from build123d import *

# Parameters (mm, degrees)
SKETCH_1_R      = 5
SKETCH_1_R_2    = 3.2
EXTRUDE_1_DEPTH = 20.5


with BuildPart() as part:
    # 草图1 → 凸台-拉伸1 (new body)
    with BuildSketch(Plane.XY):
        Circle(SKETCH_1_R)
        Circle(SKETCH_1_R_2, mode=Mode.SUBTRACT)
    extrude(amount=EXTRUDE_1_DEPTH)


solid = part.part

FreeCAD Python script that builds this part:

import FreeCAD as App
import Part
import Sketcher
Q = App.Units.Quantity

doc = App.newDocument("Part")
params = doc.addObject("Spreadsheet::Sheet", "Params")
for row, (alias, value) in enumerate([
    ("sketch1_diameter", "10 mm"),
    ("sketch1_diameter2", "6.4 mm"),
    ("pad1_length", "20.5 mm"),
], start=1):
    params.set(f"A{row}", alias)
    params.set(f"B{row}", "=" + value)
    params.setAlias(f"B{row}", alias)

body = doc.addObject("PartDesign::Body", "Body")

# Sketch on XY plane
sketch1 = doc.addObject("Sketcher::SketchObject", "Sketch")
body.addObject(sketch1)
sketch1.AttachmentSupport = (doc.XY_Plane, [""])
sketch1.MapMode = "FlatFace"
sketch1.addGeometry(Part.Circle(App.Vector(0, 0, 0), App.Vector(0, 0, 1), 5), False)
sketch1.addGeometry(Part.Circle(App.Vector(0, 0, 0), App.Vector(0, 0, 1), 3.2), False)
sketch1.addConstraint(Sketcher.Constraint("Coincident", 0, 3, -1, 1))
sketch1.addConstraint(Sketcher.Constraint("Coincident", 1, 3, -1, 1))
sketch1.addConstraint(Sketcher.Constraint("Diameter", 0, Q("10 mm")))
sketch1.addConstraint(Sketcher.Constraint("Diameter", 1, Q("6.4 mm")))
sketch1.setExpression("Constraints[2]", "Params.sketch1_diameter")
sketch1.setExpression("Constraints[3]", "Params.sketch1_diameter2")
pad1 = doc.addObject("PartDesign::Pad", "Pad")
body.addObject(pad1)
pad1.Profile = sketch1
pad1.setExpression("Length", "Params.pad1_length")

doc.recompute()
